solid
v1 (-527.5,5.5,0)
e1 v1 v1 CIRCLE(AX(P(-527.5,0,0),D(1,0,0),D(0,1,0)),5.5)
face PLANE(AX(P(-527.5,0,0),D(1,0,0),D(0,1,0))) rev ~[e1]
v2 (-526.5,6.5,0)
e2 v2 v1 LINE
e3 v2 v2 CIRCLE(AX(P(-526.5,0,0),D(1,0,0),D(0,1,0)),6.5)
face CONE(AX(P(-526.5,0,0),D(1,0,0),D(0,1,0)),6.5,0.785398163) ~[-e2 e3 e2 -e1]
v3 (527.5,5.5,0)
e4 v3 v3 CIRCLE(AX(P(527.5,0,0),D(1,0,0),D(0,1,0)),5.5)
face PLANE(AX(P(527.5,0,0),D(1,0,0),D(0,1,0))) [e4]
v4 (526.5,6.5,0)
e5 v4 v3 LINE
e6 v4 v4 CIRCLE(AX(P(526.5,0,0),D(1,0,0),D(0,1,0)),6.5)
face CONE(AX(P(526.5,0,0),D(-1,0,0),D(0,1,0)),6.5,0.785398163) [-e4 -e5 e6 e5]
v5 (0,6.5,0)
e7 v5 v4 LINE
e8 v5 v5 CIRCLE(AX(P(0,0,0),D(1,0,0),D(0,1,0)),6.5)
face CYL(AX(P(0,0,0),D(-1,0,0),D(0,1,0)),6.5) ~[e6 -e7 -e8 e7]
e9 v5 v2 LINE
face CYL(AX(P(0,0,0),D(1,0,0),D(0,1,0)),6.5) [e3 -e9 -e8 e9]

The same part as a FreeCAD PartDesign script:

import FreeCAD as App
import Part
import Sketcher
from FreeCAD import Vector


def edges_at(feature, points):
    """Names of the edges that pass closest to the given points."""
    edges = feature.Shape.Edges
    near = lambda p: min(range(len(edges)), key=lambda i: edges[i].distToShape(Part.Vertex(*p))[0])
    return sorted({f"Edge{near(p) + 1}" for p in points})

doc = App.newDocument("Part")
body = doc.addObject("PartDesign::Body", "Body")

# Sketch on YZ plane
sketch1 = body.newObject("Sketcher::SketchObject", "Sketch")
sketch1.AttachmentSupport = (doc.getObject("YZ_Plane"), [""])
sketch1.MapMode = "FlatFace"
sketch1.addGeometry(Part.Circle(Vector(0, 0, 0), Vector(0, 0, 1), 6), False)
sketch1.addConstraint(Sketcher.Constraint("Coincident", 0, 3, -1, 1))
sketch1.addConstraint(Sketcher.Constraint("Diameter", 0, 13.0))
pad1 = body.newObject("PartDesign::Pad", "Pad")
pad1.Profile = sketch1
pad1.Length = 1055
pad1.Midplane = True
doc.recompute()

chamfer = body.newObject("PartDesign::Chamfer", "Chamfer")
chamfer.Base = (pad1, edges_at(pad1, [(527.5, -6.5, 0), (-527.5, -6.5, 0)]))
chamfer.Size = 1

doc.recompute()
